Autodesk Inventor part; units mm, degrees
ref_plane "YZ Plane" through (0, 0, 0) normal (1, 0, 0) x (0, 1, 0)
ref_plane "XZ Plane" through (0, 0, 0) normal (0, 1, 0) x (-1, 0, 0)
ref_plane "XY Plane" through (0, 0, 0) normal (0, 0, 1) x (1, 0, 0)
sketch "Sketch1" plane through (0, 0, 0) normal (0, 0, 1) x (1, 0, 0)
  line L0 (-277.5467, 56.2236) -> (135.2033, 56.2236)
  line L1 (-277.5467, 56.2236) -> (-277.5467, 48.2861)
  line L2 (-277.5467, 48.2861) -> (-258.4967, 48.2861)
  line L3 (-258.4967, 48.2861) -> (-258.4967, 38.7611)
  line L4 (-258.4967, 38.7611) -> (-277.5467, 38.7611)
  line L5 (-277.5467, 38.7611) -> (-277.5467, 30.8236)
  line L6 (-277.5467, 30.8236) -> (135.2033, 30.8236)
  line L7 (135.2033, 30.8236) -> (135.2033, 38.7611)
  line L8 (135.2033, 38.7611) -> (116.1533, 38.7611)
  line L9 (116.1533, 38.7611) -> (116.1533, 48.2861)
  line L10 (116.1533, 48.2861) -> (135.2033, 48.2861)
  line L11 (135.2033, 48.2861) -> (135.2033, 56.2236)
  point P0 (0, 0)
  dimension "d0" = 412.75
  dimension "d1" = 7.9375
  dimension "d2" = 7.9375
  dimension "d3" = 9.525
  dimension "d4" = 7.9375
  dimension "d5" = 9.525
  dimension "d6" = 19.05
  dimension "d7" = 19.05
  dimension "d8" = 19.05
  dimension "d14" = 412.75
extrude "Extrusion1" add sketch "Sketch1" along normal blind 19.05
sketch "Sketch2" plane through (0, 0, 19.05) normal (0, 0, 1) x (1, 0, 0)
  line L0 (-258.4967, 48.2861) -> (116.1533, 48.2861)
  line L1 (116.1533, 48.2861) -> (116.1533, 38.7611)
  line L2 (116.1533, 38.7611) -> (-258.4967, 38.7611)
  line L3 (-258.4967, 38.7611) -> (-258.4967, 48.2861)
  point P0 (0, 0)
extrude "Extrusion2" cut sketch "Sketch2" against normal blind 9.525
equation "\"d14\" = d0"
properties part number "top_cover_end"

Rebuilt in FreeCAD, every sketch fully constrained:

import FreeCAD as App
import Part
import Sketcher
from FreeCAD import Vector
Q = App.Units.Quantity


def add_polygon(sketch, points):
    """Adds a closed chain of lines whose ends are joined by coincident constraints."""
    first, n = sketch.GeometryCount, len(points)
    for a, b in zip(points, points[1:] + points[:1]):
        sketch.addGeometry(Part.LineSegment(App.Vector(*a, 0), App.Vector(*b, 0)), False)
    for i in range(n):
        sketch.addConstraint(Sketcher.Constraint("Coincident", first + i, 2, first + (i + 1) % n, 1))

doc = App.newDocument("Part")
body = doc.addObject("PartDesign::Body", "Body")

sketch1 = doc.addObject("Sketcher::SketchObject", "Sketch")
body.addObject(sketch1)
sketch1.AttachmentSupport = (doc.XY_Plane, [""])
sketch1.MapMode = "FlatFace"
add_polygon(sketch1, [(135.2033, 56.2236), (-277.5467, 56.2236), (-277.5467, 48.2861), (-258.4967, 48.2861), (-258.4967, 38.7611), (-277.5467, 38.7611), (-277.5467, 30.8236), (135.2033, 30.8236), (135.2033, 38.7611), (116.1533, 38.7611), (116.1533, 48.2861), (135.2033, 48.2861)])
sketch1.addConstraint(Sketcher.Constraint("Horizontal", 0))
sketch1.addConstraint(Sketcher.Constraint("Vertical", 1))
sketch1.addConstraint(Sketcher.Constraint("Horizontal", 2))
sketch1.addConstraint(Sketcher.Constraint("Vertical", 3))
sketch1.addConstraint(Sketcher.Constraint("Horizontal", 4))
sketch1.addConstraint(Sketcher.Constraint("Vertical", 5))
sketch1.addConstraint(Sketcher.Constraint("Horizontal", 6))
sketch1.addConstraint(Sketcher.Constraint("Vertical", 7))
sketch1.addConstraint(Sketcher.Constraint("Horizontal", 8))
sketch1.addConstraint(Sketcher.Constraint("Vertical", 9))
sketch1.addConstraint(Sketcher.Constraint("Horizontal", 10))
sketch1.addConstraint(Sketcher.Constraint("Vertical", 11))
sketch1.addConstraint(Sketcher.Constraint("Horizontal", 4, 2, 7, 2))
sketch1.addConstraint(Sketcher.Constraint("Horizontal", 2, 2, 9, 2))
sketch1.addConstraint(Sketcher.Constraint("Vertical", 1, 2, 4, 2))
sketch1.addConstraint(Sketcher.Constraint("Vertical", 7, 2, 10, 2))
sketch1.addConstraint(Sketcher.Constraint("Equal", 4, 8))
sketch1.addConstraint(Sketcher.Constraint("Equal", 1, 5))
sketch1.addConstraint(Sketcher.Constraint("DistanceX", 0, 2, 0, 1, Q("16.25 in")))
sketch1.addConstraint(Sketcher.Constraint("DistanceX", 2, 1, 2, 2, Q("0.75 in")))
sketch1.addConstraint(Sketcher.Constraint("DistanceY", 1, 2, 1, 1, Q("0.3125 in")))
sketch1.addConstraint(Sketcher.Constraint("DistanceY", 3, 2, 3, 1, Q("0.375 in")))
sketch1.addConstraint(Sketcher.Constraint("DistanceX", 0, 2, -1, 1, Q("277.5467 mm")))
sketch1.addConstraint(Sketcher.Constraint("DistanceY", -1, 1, 0, 2, Q("56.2236 mm")))
pad1 = doc.addObject("PartDesign::Pad", "Pad")
body.addObject(pad1)
pad1.Profile = sketch1
pad1.Length = Q("0.75 in")

sketch2 = doc.addObject("Sketcher::SketchObject", "Sketch001")
body.addObject(sketch2)
sketch2.AttachmentSupport = (doc.XY_Plane, [""])
sketch2.MapMode = "FlatFace"
sketch2.AttachmentOffset = App.Placement(Vector(0, 0, 0.75 * 25.4), App.Rotation())
add_polygon(sketch2, [(116.1533, 48.2861), (-258.4967, 48.2861), (-258.4967, 38.7611), (116.1533, 38.7611)])
sketch2.addConstraint(Sketcher.Constraint("Horizontal", 0))
sketch2.addConstraint(Sketcher.Constraint("Vertical", 1))
sketch2.addConstraint(Sketcher.Constraint("Horizontal", 2))
sketch2.addConstraint(Sketcher.Constraint("Vertical", 3))
sketch2.addConstraint(Sketcher.Constraint("DistanceX", 0, 2, 0, 1, Q("14.75 in")))
sketch2.addConstraint(Sketcher.Constraint("DistanceY", 1, 2, 1, 1, Q("0.375 in")))
sketch2.addConstraint(Sketcher.Constraint("DistanceX", 0, 2, -1, 1, Q("258.4967 mm")))
sketch2.addConstraint(Sketcher.Constraint("DistanceY", -1, 1, 0, 2, Q("48.286 mm")))
pocket1 = doc.addObject("PartDesign::Pocket", "Pocket")
body.addObject(pocket1)
pocket1.Profile = sketch2
pocket1.Length = Q("0.375 in")

doc.recompute()
